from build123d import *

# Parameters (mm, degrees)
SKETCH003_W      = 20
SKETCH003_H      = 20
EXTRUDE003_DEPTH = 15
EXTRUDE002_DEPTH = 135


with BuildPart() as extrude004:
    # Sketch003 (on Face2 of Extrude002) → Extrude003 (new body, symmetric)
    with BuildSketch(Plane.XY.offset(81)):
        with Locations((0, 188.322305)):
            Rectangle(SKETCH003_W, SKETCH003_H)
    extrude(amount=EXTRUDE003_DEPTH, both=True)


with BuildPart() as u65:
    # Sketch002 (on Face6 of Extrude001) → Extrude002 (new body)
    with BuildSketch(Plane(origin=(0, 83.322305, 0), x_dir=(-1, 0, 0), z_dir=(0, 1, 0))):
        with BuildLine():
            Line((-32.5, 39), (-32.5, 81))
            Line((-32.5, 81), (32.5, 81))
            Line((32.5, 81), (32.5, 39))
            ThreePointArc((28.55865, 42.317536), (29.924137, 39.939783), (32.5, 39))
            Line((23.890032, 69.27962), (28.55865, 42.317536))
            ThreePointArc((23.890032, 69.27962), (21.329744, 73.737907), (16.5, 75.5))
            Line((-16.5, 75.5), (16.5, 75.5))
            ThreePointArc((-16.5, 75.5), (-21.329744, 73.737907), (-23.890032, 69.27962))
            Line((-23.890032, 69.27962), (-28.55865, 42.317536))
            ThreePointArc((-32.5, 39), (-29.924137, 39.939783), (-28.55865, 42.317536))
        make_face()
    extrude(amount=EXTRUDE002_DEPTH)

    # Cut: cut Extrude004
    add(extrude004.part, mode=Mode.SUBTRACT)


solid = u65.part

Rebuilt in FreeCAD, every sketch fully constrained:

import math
import FreeCAD as App
import Part
import Sketcher
from FreeCAD import Vector
Q = App.Units.Quantity


def add_polygon(sketch, points):
    """Adds a closed chain of lines whose ends are joined by coincident constraints."""
    first, n = sketch.GeometryCount, len(points)
    for a, b in zip(points, points[1:] + points[:1]):
        sketch.addGeometry(Part.LineSegment(App.Vector(*a, 0), App.Vector(*b, 0)), False)
    for i in range(n):
        sketch.addConstraint(Sketcher.Constraint("Coincident", first + i, 2, first + (i + 1) % n, 1))

doc = App.newDocument("Part")
body = doc.addObject("PartDesign::Body", "Body")

# Sketch on XY plane
sketch1 = body.newObject("Sketcher::SketchObject", "Sketch")
sketch1.AttachmentSupport = (doc.getObject("XY_Plane"), [""])
sketch1.MapMode = "FlatFace"
sketch1.AttachmentOffset = App.Placement(Vector(0, 0, 81), App.Rotation())
add_polygon(sketch1, [(-10, 198), (-10, 178), (10, 178), (10, 198)])  # lines 0-3
sketch1.addConstraint([
    Sketcher.Constraint("Vertical", 0),
    Sketcher.Constraint("Horizontal", 1),
    Sketcher.Constraint("Vertical", 2),
    Sketcher.Constraint("Horizontal", 3),
    Sketcher.Constraint("Equal", 3, 0),
    Sketcher.Constraint("DistanceX", 1, 1, 1, 2, Q("20 mm")),
    Sketcher.Constraint("DistanceX", 0, 2, -1, 1, Q("10 mm")),
    Sketcher.Constraint("DistanceY", -1, 1, 0, 2, Q("178.322305 mm")),
])
pad1 = body.newObject("PartDesign::Pad", "Pad")
pad1.Profile = sketch1
pad1.Length = 30
pad1.Midplane = True
body2 = doc.addObject("PartDesign::Body", "Body001")

# Sketch on XZ plane
sketch2 = body2.newObject("Sketcher::SketchObject", "Sketch001")
sketch2.AttachmentSupport = (doc.getObject("XZ_Plane001"), [""])
sketch2.MapMode = "FlatFace"
sketch2.AttachmentOffset = App.Placement(Vector(0, 0, -83.322305), App.Rotation())
sketch2.addGeometry([
    Part.LineSegment(Vector(32.5, 81, 0), Vector(32.5, 39, 0)),  # 0
    Part.ArcOfCircle(Part.Circle(Vector(32.5, 43, 0), Vector(0, 0, 1), 4), math.radians(-170), math.radians(-90)),  # 1
    Part.LineSegment(Vector(28.6, 42.3, 0), Vector(23.9, 69.3, 0)),  # 2
    Part.ArcOfCircle(Part.Circle(Vector(16.5, 68, 0), Vector(0, 0, 1), 7.5), math.radians(10), math.radians(90)),  # 3
    Part.LineSegment(Vector(16.5, 75.5, 0), Vector(-16.5, 75.5, 0)),  # 4
    Part.ArcOfCircle(Part.Circle(Vector(-16.5, 68, 0), Vector(0, 0, 1), 7.5), math.radians(90), math.radians(170)),  # 5
    Part.LineSegment(Vector(-23.9, 69.3, 0), Vector(-28.6, 42.3, 0)),  # 6
    Part.ArcOfCircle(Part.Circle(Vector(-32.5, 43, 0), Vector(0, 0, 1), 4), math.radians(-90), math.radians(-10)),  # 7
    Part.LineSegment(Vector(-32.5, 39, 0), Vector(-32.5, 81, 0)),  # 8
    Part.LineSegment(Vector(-32.5, 81, 0), Vector(32.5, 81, 0)),  # 9
], False)
sketch2.addConstraint([
    Sketcher.Constraint("Coincident", 0, 2, 1, 2),
    Sketcher.Constraint("Tangent", 1, 1, 2, 1),
    Sketcher.Constraint("Tangent", 2, 2, 3, 1),
    Sketcher.Constraint("Tangent", 3, 2, 4, 1),
    Sketcher.Constraint("Tangent", 4, 2, 5, 1),
    Sketcher.Constraint("Tangent", 5, 2, 6, 1),
    Sketcher.Constraint("Tangent", 6, 2, 7, 2),
    Sketcher.Constraint("Coincident", 7, 1, 8, 1),
    Sketcher.Constraint("Coincident", 8, 2, 9, 1),
    Sketcher.Constraint("Coincident", 9, 2, 0, 1),
    Sketcher.Constraint("Vertical", 0),
    Sketcher.Constraint("Horizontal", 4),
    Sketcher.Constraint("Vertical", 8),
    Sketcher.Constraint("Horizontal", 9),
    Sketcher.Constraint("Equal", 3, 5),
    Sketcher.Constraint("Equal", 1, 7),
    Sketcher.Constraint("Symmetric", 1, 3, 7, 3, -2),
    Sketcher.Constraint("Horizontal", 2, 2, 5, 2),
    Sketcher.Constraint("Vertical", 1, 3, 0, 2),
    Sketcher.Constraint("Radius", 1, Q("4 mm")),
    Sketcher.Constraint("Radius", 3, Q("7.499999 mm")),
    Sketcher.Constraint("DistanceX", 4, 2, 4, 1, Q("33 mm")),
    Sketcher.Constraint("DistanceX", 9, 1, 9, 2, Q("65 mm")),
    Sketcher.Constraint("DistanceY", 0, 2, 0, 1, Q("42 mm")),
    Sketcher.Constraint("DistanceY", -1, 1, 1, 3, Q("43 mm")),
    Sketcher.Constraint("DistanceY", -1, 1, 3, 3, Q("68.000001 mm")),
    Sketcher.Constraint("DistanceX", 3, 3, 1, 3, Q("16 mm")),
])
pad2 = body2.newObject("PartDesign::Pad", "Pad001")
pad2.Profile = sketch2
pad2.Length = 135
pad2.Reversed = True
doc.recompute()

boolean = body2.newObject("PartDesign::Boolean", "Boolean")
boolean.Type = "Cut"
boolean.addObjects([body])

doc.recompute()
